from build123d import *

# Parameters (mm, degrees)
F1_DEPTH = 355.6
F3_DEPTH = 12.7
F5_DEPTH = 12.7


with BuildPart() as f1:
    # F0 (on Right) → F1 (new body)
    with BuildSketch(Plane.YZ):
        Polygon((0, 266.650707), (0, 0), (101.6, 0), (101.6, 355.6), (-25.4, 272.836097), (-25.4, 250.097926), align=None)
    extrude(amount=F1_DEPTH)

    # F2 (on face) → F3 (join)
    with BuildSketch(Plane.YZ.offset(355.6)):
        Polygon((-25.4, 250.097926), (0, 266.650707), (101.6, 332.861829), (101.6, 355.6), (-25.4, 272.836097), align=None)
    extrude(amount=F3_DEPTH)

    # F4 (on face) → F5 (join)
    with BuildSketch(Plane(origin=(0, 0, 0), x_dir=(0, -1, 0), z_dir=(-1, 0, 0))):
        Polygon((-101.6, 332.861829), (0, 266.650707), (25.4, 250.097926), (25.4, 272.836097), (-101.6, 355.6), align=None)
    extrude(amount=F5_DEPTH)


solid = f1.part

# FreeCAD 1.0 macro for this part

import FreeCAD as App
import Part
import Sketcher

V = App.Vector
Q = App.Units.Quantity

doc = App.newDocument("Part")
body = doc.addObject("PartDesign::Body", "Body")

sketch1 = body.newObject("Sketcher::SketchObject", "Sketch")
sketch1.AttachmentSupport = (doc.getObject("YZ_Plane"), [""])
sketch1.MapMode = "FlatFace"
sketch1.addGeometry([
    Part.LineSegment(V(0, 266.650707, 0), V(0, 0, 0)),
    Part.LineSegment(V(0, 0, 0), V(101.6, 0, 0)),
    Part.LineSegment(V(101.6, 0, 0), V(101.6, 355.6, 0)),
    Part.LineSegment(V(101.6, 355.6, 0), V(-25.4, 272.836097, 0)),
    Part.LineSegment(V(-25.4, 272.836097, 0), V(-25.4, 250.097926, 0)),
    Part.LineSegment(V(-25.4, 250.097926, 0), V(0, 266.650707, 0)),
], False)
sketch1.addConstraint([
    Sketcher.Constraint("Coincident", 0, 2, 1, 1),
    Sketcher.Constraint("Coincident", 1, 2, 2, 1),
    Sketcher.Constraint("Coincident", 2, 2, 3, 1),
    Sketcher.Constraint("Coincident", 3, 2, 4, 1),
    Sketcher.Constraint("Coincident", 4, 2, 5, 1),
    Sketcher.Constraint("Coincident", 5, 2, 0, 1),
    Sketcher.Constraint("Vertical", 0),
    Sketcher.Constraint("Horizontal", 1),
    Sketcher.Constraint("Vertical", 2),
    Sketcher.Constraint("Vertical", 4),
    Sketcher.Constraint("Coincident", 0, 2, -1, 1),
    Sketcher.Constraint("Parallel", 3, 5),
    Sketcher.Constraint("DistanceX", 1, 1, 1, 2, Q("4 in")),
    Sketcher.Constraint("DistanceY", 2, 1, 2, 2, Q("14 in")),
    Sketcher.Constraint("DistanceX", 3, 2, -1, 1, Q("1 in")),
    Sketcher.Constraint("DistanceY", 4, 2, 4, 1, 22.738171),
    Sketcher.Constraint("Distance", 3, 151.587808),
])
pad1 = body.newObject("PartDesign::Pad", "Pad")
pad1.Profile = sketch1
pad1.Length = Q("14 in")

sketch2 = body.newObject("Sketcher::SketchObject", "Sketch001")
sketch2.AttachmentSupport = (doc.getObject("YZ_Plane"), [""])
sketch2.MapMode = "FlatFace"
sketch2.AttachmentOffset = App.Placement(V(0, 0, 14 * 25.4), App.Rotation())
sketch2.addGeometry([
    Part.LineSegment(V(-25.4, 250.097926, 0), V(0, 266.650707, 0)),
    Part.LineSegment(V(0, 266.650707, 0), V(101.6, 332.861829, 0)),
    Part.LineSegment(V(101.6, 332.861829, 0), V(101.6, 355.6, 0)),
    Part.LineSegment(V(101.6, 355.6, 0), V(-25.4, 272.836097, 0)),
    Part.LineSegment(V(-25.4, 272.836097, 0), V(-25.4, 250.097926, 0)),
], False)
sketch2.addConstraint([
    Sketcher.Constraint("Coincident", 0, 2, 1, 1),
    Sketcher.Constraint("Coincident", 1, 2, 2, 1),
    Sketcher.Constraint("Coincident", 2, 2, 3, 1),
    Sketcher.Constraint("Coincident", 3, 2, 4, 1),
    Sketcher.Constraint("Coincident", 4, 2, 0, 1),
    Sketcher.Constraint("Vertical", 2),
    Sketcher.Constraint("Vertical", 4),
    Sketcher.Constraint("PointOnObject", 0, 2, -2),
    Sketcher.Constraint("Parallel", 0, 1),
    Sketcher.Constraint("Parallel", 1, 3),
    Sketcher.Constraint("DistanceX", -1, 1, 1, 2, Q("4 in")),
    Sketcher.Constraint("DistanceY", -1, 1, 2, 2, Q("14 in")),
    Sketcher.Constraint("DistanceX", 3, 2, -1, 1, Q("1 in")),
    Sketcher.Constraint("DistanceY", 2, 1, 2, 2, 22.738171),
    Sketcher.Constraint("Distance", 0, 30.317562),
])
pad2 = body.newObject("PartDesign::Pad", "Pad001")
pad2.Profile = sketch2
pad2.Length = Q("0.5 in")

sketch3 = body.newObject("Sketcher::SketchObject", "Sketch002")
sketch3.AttachmentSupport = (doc.getObject("YZ_Plane"), [""])
sketch3.MapMode = "FlatFace"
sketch3.addGeometry([
    Part.LineSegment(V(101.6, 332.861829, 0), V(0, 266.650707, 0)),
    Part.LineSegment(V(0, 266.650707, 0), V(-25.4, 250.097926, 0)),
    Part.LineSegment(V(-25.4, 250.097926, 0), V(-25.4, 272.836097, 0)),
    Part.LineSegment(V(-25.4, 272.836097, 0), V(101.6, 355.6, 0)),
    Part.LineSegment(V(101.6, 355.6, 0), V(101.6, 332.861829, 0)),
], False)
sketch3.addConstraint([
    Sketcher.Constraint("Coincident", 0, 2, 1, 1),
    Sketcher.Constraint("Coincident", 1, 2, 2, 1),
    Sketcher.Constraint("Coincident", 2, 2, 3, 1),
    Sketcher.Constraint("Coincident", 3, 2, 4, 1),
    Sketcher.Constraint("Coincident", 4, 2, 0, 1),
    Sketcher.Constraint("Vertical", 2),
    Sketcher.Constraint("Vertical", 4),
    Sketcher.Constraint("PointOnObject", 0, 2, -2),
    Sketcher.Constraint("Parallel", 0, 1),
    Sketcher.Constraint("Parallel", 1, 3),
    Sketcher.Constraint("DistanceX", 1, 2, -1, 1, Q("1 in")),
    Sketcher.Constraint("DistanceX", -1, 1, 3, 2, Q("4 in")),
    Sketcher.Constraint("DistanceY", -1, 1, 3, 2, Q("14 in")),
    Sketcher.Constraint("DistanceY", 2, 1, 2, 2, 22.738171),
    Sketcher.Constraint("Distance", 1, 30.317562),
])
pad3 = body.newObject("PartDesign::Pad", "Pad002")
pad3.Profile = sketch3
pad3.Length = Q("0.5 in")
pad3.Reversed = True

doc.recompute()
